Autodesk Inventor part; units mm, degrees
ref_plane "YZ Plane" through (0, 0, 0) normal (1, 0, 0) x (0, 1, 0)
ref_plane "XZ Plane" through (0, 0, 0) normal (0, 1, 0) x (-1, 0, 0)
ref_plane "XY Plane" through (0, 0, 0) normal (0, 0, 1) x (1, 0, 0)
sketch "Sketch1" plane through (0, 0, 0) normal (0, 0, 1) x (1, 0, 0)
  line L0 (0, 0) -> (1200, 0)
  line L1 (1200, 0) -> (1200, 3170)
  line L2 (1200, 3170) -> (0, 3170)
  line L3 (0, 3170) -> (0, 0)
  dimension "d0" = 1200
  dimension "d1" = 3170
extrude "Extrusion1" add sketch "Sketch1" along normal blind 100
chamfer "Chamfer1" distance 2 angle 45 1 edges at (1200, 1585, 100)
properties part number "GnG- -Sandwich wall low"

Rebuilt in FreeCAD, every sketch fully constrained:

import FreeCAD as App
import Part
import Sketcher
from FreeCAD import Vector
Q = App.Units.Quantity


def edges_at(feature, points):
    """Names of the edges that pass closest to the given points."""
    edges = feature.Shape.Edges
    near = lambda p: min(range(len(edges)), key=lambda i: edges[i].distToShape(Part.Vertex(*p))[0])
    return sorted({f"Edge{near(p) + 1}" for p in points})

doc = App.newDocument("Part")
body = doc.addObject("PartDesign::Body", "Body")

# Sketch on XY plane
sketch1 = doc.addObject("Sketcher::SketchObject", "Sketch")
body.addObject(sketch1)
sketch1.AttachmentSupport = (doc.XY_Plane, [""])
sketch1.MapMode = "FlatFace"
sketch1.addGeometry([
    Part.LineSegment(Vector(0, 3170, 0), Vector(0, 0, 0)),
    Part.LineSegment(Vector(0, 0, 0), Vector(1200, 0, 0)),
    Part.LineSegment(Vector(1200, 0, 0), Vector(1200, 3170, 0)),
    Part.LineSegment(Vector(1200, 3170, 0), Vector(0, 3170, 0)),
], False)
sketch1.addConstraint([
    Sketcher.Constraint("Coincident", 0, 2, 1, 1),
    Sketcher.Constraint("Coincident", 1, 2, 2, 1),
    Sketcher.Constraint("Coincident", 2, 2, 3, 1),
    Sketcher.Constraint("Coincident", 3, 2, 0, 1),
    Sketcher.Constraint("Vertical", 0),
    Sketcher.Constraint("Horizontal", 1),
    Sketcher.Constraint("Vertical", 2),
    Sketcher.Constraint("Horizontal", 3),
    Sketcher.Constraint("Coincident", 0, 2, -1, 1),
    Sketcher.Constraint("DistanceX", 1, 1, 1, 2, Q("1200 mm")),
    Sketcher.Constraint("DistanceY", 0, 2, 0, 1, Q("3170 mm")),
])
pad1 = doc.addObject("PartDesign::Pad", "Pad")
body.addObject(pad1)
pad1.Profile = sketch1
pad1.Length = 100
doc.recompute()

chamfer = doc.addObject("PartDesign::Chamfer", "Chamfer")
body.addObject(chamfer)
chamfer.Base = (pad1, edges_at(pad1, [(1200, 1585, 100)]))
chamfer.Size = 2

doc.recompute()
